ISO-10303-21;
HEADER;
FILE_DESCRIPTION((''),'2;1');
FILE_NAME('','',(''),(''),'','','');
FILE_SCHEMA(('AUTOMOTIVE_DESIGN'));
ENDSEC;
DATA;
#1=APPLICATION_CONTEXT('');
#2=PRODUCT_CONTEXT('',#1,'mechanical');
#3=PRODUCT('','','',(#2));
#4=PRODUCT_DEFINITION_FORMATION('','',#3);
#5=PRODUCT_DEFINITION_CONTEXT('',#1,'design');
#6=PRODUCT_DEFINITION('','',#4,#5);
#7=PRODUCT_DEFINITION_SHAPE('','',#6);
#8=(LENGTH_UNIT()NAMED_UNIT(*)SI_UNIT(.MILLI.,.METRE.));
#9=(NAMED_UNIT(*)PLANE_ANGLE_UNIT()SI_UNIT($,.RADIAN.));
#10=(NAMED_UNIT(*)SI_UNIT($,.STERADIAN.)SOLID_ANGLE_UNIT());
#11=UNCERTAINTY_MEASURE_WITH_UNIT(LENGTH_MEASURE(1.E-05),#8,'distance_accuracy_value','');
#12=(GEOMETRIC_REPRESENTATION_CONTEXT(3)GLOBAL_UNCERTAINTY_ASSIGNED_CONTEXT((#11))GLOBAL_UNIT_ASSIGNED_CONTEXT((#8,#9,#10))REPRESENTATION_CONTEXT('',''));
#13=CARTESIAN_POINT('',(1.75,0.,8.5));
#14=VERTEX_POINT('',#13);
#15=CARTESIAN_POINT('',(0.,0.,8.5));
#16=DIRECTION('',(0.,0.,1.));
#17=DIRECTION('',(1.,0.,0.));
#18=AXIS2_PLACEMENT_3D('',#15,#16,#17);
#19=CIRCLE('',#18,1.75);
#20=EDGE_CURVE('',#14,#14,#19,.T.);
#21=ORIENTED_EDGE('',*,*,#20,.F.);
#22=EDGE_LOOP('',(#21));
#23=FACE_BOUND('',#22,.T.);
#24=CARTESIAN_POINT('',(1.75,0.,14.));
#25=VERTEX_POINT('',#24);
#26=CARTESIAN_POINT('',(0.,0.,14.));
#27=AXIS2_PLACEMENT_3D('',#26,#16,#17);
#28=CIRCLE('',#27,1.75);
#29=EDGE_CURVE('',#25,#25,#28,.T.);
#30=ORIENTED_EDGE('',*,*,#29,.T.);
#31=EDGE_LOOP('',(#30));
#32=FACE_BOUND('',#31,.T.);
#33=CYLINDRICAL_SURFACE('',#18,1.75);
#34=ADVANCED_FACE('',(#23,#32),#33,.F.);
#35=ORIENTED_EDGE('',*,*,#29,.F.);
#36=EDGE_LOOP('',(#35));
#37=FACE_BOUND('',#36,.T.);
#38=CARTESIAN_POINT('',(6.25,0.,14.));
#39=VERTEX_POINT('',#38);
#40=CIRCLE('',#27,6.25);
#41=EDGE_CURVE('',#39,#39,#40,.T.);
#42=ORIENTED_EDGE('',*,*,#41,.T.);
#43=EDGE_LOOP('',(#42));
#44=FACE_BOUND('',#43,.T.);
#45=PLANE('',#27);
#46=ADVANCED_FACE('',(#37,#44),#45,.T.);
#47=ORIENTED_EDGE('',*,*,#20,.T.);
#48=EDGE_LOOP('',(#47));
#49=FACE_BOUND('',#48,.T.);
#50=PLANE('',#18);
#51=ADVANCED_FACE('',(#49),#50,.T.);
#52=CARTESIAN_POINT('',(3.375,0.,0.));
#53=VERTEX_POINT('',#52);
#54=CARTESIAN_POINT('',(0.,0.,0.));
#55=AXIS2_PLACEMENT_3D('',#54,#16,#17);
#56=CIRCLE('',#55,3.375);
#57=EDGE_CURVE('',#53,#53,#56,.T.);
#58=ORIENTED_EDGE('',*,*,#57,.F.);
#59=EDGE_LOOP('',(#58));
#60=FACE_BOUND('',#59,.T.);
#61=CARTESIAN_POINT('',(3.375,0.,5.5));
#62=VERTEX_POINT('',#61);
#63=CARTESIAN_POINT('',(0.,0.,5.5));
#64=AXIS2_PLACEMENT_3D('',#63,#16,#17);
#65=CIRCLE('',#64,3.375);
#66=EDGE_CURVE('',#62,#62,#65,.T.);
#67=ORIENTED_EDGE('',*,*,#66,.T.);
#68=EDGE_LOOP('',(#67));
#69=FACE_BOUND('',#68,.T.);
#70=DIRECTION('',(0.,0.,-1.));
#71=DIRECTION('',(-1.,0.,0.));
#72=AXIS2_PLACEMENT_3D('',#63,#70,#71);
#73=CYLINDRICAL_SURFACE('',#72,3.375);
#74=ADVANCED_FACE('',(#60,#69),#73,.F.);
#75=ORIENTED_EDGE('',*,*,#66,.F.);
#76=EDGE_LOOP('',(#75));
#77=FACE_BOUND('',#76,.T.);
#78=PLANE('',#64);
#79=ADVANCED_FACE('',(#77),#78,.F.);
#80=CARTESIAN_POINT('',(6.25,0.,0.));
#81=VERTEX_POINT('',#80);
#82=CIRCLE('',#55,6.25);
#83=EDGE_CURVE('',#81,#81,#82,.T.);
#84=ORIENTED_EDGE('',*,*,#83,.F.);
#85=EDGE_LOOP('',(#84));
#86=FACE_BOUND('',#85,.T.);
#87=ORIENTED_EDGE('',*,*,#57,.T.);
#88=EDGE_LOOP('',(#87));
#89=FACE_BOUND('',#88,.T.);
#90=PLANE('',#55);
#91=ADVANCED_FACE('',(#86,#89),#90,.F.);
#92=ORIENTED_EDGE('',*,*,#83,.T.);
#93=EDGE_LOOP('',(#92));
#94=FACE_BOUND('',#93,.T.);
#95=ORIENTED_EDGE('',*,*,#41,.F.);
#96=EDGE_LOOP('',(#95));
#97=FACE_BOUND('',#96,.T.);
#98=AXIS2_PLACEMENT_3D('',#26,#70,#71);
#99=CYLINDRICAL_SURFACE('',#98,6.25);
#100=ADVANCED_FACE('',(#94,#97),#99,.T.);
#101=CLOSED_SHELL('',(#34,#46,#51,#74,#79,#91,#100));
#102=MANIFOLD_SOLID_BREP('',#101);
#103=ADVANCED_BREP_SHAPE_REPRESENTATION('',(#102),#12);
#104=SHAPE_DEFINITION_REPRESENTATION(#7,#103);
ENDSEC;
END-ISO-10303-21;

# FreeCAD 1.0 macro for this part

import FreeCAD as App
import Part
import Sketcher
from FreeCAD import Vector

doc = App.newDocument("Part")
params = doc.addObject("Spreadsheet::Sheet", "Params")
for row, (alias, value) in enumerate([
    ("sketch1_diameter", "12.5 mm"),
    ("pad1_length", "14 mm"),
    ("sketch2_diameter", "3.5 mm"),
    ("pocket1_length", "5.5 mm"),
    ("sketch3_diameter", "6.75 mm"),
    ("pocket2_length", "5.5 mm"),
], start=1):
    params.set(f"A{row}", alias)
    params.set(f"B{row}", "=" + value)
    params.setAlias(f"B{row}", alias)

body = doc.addObject("PartDesign::Body", "Body")

sketch1 = body.newObject("Sketcher::SketchObject", "Sketch")
sketch1.AttachmentSupport = (doc.getObject("XY_Plane"), [""])
sketch1.MapMode = "FlatFace"
sketch1.addGeometry(Part.Circle(Vector(0, 0, 0), Vector(0, 0, 1), 6), False)
sketch1.addConstraint([
    Sketcher.Constraint("Coincident", 0, 3, -1, 1),
    Sketcher.Constraint("Diameter", 0, 12.5),
])
sketch1.setExpression("Constraints[1]", "Params.sketch1_diameter")
pad1 = body.newObject("PartDesign::Pad", "Pad")
pad1.Profile = sketch1
pad1.setExpression("Length", "Params.pad1_length")

sketch2 = body.newObject("Sketcher::SketchObject", "Sketch001")
sketch2.AttachmentSupport = (doc.getObject("XY_Plane"), [""])
sketch2.MapMode = "FlatFace"
sketch2.AttachmentOffset = App.Placement(Vector(0, 0, 14), App.Rotation())
sketch2.addGeometry(Part.Circle(Vector(0, 0, 0), Vector(0, 0, 1), 1.8), False)
sketch2.addConstraint([
    Sketcher.Constraint("Coincident", 0, 3, -1, 1),
    Sketcher.Constraint("Diameter", 0, 3.5),
])
sketch2.setExpression("Constraints[1]", "Params.sketch2_diameter")
pocket1 = body.newObject("PartDesign::Pocket", "Pocket")
pocket1.Profile = sketch2
pocket1.setExpression("Length", "Params.pocket1_length")

sketch3 = body.newObject("Sketcher::SketchObject", "Sketch002")
sketch3.AttachmentSupport = (doc.getObject("XY_Plane"), [""])
sketch3.MapMode = "FlatFace"
sketch3.addGeometry(Part.Circle(Vector(0, 0, 0), Vector(0, 0, 1), 3.4), False)
sketch3.addConstraint([
    Sketcher.Constraint("Coincident", 0, 3, -1, 1),
    Sketcher.Constraint("Diameter", 0, 6.75),
])
sketch3.setExpression("Constraints[1]", "Params.sketch3_diameter")
pocket2 = body.newObject("PartDesign::Pocket", "Pocket001")
pocket2.Profile = sketch3
pocket2.setExpression("Length", "Params.pocket2_length")
pocket2.Reversed = True

doc.recompute()
